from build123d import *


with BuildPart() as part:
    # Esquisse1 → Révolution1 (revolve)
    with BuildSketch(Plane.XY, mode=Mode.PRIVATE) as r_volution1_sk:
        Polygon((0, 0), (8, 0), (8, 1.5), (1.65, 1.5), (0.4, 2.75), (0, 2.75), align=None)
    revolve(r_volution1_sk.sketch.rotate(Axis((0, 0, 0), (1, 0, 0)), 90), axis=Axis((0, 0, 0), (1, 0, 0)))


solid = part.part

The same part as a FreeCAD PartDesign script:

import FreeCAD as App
import Part
import Sketcher
from FreeCAD import Vector
Q = App.Units.Quantity

doc = App.newDocument("Part")
params = doc.addObject("Spreadsheet::Sheet", "Params")
for row, (alias, value) in enumerate([
    ("sketch1_width", "8 mm"),
    ("sketch1_width2", "0.4 mm"),
    ("sketch1_height", "1.5 mm"),
    ("sketch1_width3", "6.35 mm"),
    ("revolution_angle", "360 deg"),
], start=1):
    params.set(f"A{row}", alias)
    params.set(f"B{row}", "=" + value)
    params.setAlias(f"B{row}", alias)

body = doc.addObject("PartDesign::Body", "Body")

sketch1 = doc.addObject("Sketcher::SketchObject", "Sketch")
body.addObject(sketch1)
sketch1.AttachmentSupport = (doc.XY_Plane, [""])
sketch1.MapMode = "FlatFace"
sketch1.addGeometry(Part.LineSegment(Vector(0, 0, 0), Vector(8, 0, 0)), False)
sketch1.addGeometry(Part.LineSegment(Vector(8, 0, 0), Vector(8, 1.5, 0)), False)
sketch1.addGeometry(Part.LineSegment(Vector(8, 1.5, 0), Vector(1.65, 1.5, 0)), False)
sketch1.addGeometry(Part.LineSegment(Vector(1.65, 1.5, 0), Vector(0.4, 2.75, 0)), False)
sketch1.addGeometry(Part.LineSegment(Vector(0.4, 2.75, 0), Vector(0, 2.75, 0)), False)
sketch1.addGeometry(Part.LineSegment(Vector(0, 2.75, 0), Vector(0, 0, 0)), False)
sketch1.addConstraint(Sketcher.Constraint("Coincident", 0, 2, 1, 1))
sketch1.addConstraint(Sketcher.Constraint("Coincident", 1, 2, 2, 1))
sketch1.addConstraint(Sketcher.Constraint("Coincident", 2, 2, 3, 1))
sketch1.addConstraint(Sketcher.Constraint("Coincident", 3, 2, 4, 1))
sketch1.addConstraint(Sketcher.Constraint("Coincident", 4, 2, 5, 1))
sketch1.addConstraint(Sketcher.Constraint("Coincident", 5, 2, 0, 1))
sketch1.addConstraint(Sketcher.Constraint("Horizontal", 0))
sketch1.addConstraint(Sketcher.Constraint("Vertical", 1))
sketch1.addConstraint(Sketcher.Constraint("Horizontal", 2))
sketch1.addConstraint(Sketcher.Constraint("Horizontal", 4))
sketch1.addConstraint(Sketcher.Constraint("Vertical", 5))
sketch1.addConstraint(Sketcher.Constraint("Coincident", 5, 2, -1, 1))
sketch1.addConstraint(Sketcher.Constraint("DistanceX", 0, 1, 0, 2, Q("8 mm")))
sketch1.addConstraint(Sketcher.Constraint("Angle", 3, Q("135 deg")))
sketch1.addConstraint(Sketcher.Constraint("DistanceX", 4, 2, 4, 1, Q("0.4 mm")))
sketch1.addConstraint(Sketcher.Constraint("DistanceY", 1, 1, 1, 2, Q("1.5 mm")))
sketch1.addConstraint(Sketcher.Constraint("DistanceX", 2, 2, 2, 1, Q("6.35 mm")))
sketch1.setExpression("Constraints[12]", "Params.sketch1_width")
sketch1.setExpression("Constraints[14]", "Params.sketch1_width2")
sketch1.setExpression("Constraints[15]", "Params.sketch1_height")
sketch1.setExpression("Constraints[16]", "Params.sketch1_width3")
revolution = doc.addObject("PartDesign::Revolution", "Revolution")
body.addObject(revolution)
revolution.Profile = sketch1
revolution.ReferenceAxis = (sketch1, ["H_Axis"])
revolution.setExpression("Angle", "Params.revolution_angle")

doc.recompute()
